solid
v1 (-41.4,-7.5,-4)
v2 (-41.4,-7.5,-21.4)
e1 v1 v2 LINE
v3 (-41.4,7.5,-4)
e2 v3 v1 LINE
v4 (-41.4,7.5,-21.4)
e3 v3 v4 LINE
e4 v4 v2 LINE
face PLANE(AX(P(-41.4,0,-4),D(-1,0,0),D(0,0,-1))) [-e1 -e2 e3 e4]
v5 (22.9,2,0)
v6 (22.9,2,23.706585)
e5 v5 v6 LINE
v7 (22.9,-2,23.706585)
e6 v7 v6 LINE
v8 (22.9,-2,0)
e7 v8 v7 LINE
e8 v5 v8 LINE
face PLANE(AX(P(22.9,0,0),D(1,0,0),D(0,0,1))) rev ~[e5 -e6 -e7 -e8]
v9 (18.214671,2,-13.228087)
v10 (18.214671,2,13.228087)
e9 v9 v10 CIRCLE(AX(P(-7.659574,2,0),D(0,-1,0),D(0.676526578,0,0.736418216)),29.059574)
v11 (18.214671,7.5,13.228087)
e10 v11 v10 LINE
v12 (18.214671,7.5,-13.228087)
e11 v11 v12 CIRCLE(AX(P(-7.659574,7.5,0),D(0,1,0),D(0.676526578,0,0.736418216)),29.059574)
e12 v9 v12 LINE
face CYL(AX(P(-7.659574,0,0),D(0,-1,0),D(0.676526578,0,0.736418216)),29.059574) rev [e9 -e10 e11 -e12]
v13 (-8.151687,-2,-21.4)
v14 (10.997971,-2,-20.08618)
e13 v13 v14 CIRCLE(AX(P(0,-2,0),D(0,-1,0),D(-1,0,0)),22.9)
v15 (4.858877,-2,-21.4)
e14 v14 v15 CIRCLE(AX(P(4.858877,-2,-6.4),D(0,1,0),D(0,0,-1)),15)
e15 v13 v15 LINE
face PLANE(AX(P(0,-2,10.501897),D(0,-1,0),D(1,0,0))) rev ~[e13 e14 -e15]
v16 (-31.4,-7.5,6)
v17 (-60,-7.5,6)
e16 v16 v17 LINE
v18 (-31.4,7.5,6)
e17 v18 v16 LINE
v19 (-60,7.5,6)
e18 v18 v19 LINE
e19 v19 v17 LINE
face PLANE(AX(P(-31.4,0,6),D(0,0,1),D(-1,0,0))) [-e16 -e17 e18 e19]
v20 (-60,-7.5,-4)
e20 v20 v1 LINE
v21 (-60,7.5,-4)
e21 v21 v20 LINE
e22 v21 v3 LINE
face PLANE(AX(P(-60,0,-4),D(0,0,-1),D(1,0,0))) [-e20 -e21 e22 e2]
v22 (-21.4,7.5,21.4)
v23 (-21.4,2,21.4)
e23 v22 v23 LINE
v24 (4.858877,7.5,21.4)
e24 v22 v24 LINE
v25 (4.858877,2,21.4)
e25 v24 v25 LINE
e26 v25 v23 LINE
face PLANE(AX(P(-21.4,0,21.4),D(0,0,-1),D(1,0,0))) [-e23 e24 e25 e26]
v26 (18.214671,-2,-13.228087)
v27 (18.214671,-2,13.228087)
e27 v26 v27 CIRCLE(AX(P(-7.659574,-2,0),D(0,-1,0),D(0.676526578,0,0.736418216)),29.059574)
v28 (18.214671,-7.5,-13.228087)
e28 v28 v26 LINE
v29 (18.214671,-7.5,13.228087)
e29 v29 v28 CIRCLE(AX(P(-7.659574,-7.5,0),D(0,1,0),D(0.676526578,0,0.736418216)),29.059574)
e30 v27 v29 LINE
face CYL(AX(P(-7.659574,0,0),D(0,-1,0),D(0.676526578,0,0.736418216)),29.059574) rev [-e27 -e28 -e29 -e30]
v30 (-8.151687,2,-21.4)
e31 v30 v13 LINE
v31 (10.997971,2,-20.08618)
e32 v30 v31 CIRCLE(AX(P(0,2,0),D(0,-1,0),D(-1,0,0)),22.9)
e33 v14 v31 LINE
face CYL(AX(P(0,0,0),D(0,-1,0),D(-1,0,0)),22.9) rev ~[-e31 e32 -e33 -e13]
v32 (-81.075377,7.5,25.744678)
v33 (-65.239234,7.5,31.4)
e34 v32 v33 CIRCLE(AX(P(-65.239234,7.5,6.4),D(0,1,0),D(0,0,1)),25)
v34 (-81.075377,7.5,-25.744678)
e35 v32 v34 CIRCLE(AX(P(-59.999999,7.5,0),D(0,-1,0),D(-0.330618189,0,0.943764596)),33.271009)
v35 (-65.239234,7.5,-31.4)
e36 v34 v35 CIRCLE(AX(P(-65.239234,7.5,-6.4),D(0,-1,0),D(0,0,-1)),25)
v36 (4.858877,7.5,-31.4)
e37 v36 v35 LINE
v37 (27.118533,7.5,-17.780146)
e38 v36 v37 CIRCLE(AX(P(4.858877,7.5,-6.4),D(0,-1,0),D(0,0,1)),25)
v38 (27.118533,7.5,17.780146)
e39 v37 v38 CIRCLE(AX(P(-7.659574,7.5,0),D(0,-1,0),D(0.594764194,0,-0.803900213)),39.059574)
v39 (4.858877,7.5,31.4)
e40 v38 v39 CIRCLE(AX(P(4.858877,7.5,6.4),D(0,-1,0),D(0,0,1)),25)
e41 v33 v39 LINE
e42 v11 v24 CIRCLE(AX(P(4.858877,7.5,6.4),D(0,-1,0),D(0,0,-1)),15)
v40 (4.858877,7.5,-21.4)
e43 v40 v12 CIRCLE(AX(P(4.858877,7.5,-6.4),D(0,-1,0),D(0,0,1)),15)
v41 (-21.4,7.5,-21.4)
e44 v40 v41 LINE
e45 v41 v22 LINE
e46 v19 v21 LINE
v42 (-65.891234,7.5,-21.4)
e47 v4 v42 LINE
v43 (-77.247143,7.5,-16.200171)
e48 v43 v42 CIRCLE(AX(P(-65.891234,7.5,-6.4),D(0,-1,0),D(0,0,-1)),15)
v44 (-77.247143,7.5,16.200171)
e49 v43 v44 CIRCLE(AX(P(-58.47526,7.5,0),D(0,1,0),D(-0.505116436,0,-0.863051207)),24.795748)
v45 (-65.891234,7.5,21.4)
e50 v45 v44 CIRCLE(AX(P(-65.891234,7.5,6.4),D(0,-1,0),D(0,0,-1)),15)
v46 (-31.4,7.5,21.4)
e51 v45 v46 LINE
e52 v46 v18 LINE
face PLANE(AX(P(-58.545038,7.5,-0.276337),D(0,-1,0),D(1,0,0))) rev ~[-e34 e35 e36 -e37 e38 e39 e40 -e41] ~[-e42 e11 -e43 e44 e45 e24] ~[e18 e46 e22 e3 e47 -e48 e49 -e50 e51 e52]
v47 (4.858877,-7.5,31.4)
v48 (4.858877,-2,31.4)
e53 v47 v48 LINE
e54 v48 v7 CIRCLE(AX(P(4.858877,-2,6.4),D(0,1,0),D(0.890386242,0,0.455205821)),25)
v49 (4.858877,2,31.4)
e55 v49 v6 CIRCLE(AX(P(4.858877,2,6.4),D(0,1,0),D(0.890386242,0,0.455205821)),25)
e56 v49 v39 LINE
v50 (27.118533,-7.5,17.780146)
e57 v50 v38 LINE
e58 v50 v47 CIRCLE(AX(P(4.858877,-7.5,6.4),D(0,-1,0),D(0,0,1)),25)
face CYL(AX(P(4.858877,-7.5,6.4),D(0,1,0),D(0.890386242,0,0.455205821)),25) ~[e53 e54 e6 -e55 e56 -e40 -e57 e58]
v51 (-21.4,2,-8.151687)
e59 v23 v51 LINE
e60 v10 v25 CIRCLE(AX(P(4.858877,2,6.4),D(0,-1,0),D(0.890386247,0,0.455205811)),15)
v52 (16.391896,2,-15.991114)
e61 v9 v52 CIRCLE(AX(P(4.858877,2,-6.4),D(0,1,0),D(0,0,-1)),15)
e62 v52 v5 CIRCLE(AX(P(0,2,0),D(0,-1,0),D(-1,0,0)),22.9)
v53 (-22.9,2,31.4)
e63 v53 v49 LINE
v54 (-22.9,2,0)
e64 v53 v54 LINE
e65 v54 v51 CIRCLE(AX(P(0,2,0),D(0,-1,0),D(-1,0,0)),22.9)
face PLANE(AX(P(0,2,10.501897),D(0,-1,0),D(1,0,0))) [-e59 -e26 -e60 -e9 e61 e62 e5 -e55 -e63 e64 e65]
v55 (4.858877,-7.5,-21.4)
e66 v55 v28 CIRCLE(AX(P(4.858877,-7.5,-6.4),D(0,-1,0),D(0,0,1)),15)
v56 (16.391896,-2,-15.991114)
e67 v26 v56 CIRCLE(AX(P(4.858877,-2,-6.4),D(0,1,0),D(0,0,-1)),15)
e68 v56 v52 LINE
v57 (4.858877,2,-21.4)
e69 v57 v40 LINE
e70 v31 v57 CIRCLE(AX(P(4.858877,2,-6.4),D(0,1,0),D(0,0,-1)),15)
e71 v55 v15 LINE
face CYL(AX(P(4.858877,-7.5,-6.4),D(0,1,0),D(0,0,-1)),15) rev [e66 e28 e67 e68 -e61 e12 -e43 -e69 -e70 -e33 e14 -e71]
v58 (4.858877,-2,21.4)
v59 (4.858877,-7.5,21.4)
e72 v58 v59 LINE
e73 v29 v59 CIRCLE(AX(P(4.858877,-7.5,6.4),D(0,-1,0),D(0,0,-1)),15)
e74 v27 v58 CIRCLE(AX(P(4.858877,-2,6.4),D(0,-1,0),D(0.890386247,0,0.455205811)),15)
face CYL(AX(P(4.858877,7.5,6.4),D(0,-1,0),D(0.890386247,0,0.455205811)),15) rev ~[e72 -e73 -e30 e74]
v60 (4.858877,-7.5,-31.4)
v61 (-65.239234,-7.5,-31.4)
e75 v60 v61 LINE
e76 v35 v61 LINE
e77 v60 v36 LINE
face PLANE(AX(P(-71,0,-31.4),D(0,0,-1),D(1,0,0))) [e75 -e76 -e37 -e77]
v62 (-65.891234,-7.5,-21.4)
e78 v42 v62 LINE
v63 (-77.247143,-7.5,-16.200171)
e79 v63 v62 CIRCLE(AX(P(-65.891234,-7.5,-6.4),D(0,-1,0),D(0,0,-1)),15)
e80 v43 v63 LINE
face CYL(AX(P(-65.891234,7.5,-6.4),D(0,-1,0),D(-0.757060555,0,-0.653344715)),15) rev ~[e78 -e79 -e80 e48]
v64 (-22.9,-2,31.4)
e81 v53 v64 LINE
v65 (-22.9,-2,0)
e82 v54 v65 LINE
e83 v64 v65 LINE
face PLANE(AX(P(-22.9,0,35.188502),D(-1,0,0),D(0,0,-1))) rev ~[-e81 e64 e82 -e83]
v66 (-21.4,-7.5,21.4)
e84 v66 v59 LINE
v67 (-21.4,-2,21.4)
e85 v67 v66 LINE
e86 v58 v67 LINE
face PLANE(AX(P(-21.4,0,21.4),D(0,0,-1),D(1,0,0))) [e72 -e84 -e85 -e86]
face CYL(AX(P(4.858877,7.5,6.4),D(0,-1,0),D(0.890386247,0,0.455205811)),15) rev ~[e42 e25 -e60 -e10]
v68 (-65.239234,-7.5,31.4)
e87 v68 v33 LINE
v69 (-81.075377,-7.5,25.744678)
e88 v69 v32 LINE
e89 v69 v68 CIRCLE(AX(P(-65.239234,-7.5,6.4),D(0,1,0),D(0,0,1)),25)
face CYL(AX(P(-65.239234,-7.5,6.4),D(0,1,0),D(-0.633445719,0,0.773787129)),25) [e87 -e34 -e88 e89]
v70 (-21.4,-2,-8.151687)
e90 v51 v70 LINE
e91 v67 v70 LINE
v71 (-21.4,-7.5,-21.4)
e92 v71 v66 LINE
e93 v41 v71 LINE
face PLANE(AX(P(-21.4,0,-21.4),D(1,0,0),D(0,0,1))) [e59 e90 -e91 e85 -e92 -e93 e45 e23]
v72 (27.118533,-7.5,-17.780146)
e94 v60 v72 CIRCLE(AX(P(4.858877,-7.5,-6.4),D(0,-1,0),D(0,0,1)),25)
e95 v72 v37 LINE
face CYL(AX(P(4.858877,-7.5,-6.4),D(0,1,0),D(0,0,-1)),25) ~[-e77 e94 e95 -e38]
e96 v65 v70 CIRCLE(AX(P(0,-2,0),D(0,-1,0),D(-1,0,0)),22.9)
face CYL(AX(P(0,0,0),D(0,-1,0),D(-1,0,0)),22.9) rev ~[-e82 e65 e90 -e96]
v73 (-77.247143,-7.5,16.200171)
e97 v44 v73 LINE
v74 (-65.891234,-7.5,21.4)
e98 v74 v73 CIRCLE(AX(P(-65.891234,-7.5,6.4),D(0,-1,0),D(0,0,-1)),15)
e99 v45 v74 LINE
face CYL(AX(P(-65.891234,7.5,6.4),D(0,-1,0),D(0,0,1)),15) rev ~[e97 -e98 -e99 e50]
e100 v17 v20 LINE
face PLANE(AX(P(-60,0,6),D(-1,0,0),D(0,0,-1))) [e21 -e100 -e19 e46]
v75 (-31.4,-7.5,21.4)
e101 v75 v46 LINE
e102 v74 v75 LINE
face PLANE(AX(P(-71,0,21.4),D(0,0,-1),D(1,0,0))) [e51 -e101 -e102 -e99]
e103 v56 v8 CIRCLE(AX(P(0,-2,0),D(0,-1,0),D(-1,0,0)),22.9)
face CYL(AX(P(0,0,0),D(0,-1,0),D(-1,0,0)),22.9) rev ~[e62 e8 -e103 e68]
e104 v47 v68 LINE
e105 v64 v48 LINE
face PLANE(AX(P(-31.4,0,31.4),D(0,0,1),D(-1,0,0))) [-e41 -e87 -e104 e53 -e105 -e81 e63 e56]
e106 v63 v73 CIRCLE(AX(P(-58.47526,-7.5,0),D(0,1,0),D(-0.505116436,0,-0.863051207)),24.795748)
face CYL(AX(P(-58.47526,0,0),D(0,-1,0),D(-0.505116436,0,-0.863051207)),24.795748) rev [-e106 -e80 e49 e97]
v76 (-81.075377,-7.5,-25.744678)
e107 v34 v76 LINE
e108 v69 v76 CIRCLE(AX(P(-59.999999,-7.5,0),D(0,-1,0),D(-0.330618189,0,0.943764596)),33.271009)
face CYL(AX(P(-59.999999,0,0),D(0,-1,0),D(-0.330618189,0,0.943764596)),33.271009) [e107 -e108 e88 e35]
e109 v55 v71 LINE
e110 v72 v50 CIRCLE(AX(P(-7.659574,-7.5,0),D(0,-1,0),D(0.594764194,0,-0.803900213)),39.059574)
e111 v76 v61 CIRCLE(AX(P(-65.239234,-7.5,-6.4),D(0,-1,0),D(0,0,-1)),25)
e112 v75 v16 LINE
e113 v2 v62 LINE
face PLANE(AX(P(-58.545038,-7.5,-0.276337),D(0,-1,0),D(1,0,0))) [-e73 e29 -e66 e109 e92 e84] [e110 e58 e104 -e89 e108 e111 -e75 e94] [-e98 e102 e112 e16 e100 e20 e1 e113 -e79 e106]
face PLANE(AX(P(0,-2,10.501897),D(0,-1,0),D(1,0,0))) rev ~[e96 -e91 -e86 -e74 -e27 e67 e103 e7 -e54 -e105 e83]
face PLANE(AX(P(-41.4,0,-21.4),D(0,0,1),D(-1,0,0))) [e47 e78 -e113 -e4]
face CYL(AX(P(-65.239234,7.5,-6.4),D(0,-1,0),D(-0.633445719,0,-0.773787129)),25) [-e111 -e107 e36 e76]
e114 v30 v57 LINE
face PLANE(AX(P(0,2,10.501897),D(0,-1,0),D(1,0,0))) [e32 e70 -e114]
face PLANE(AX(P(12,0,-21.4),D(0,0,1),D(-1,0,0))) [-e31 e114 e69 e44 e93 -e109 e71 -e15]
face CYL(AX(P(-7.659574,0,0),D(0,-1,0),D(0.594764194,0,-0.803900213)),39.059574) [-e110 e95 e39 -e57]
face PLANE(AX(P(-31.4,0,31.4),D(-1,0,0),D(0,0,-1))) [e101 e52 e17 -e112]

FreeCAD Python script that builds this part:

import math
import FreeCAD as App
import Part
import Sketcher
Q = App.Units.Quantity


def edges_at(feature, points):
    """Names of the edges that pass closest to the given points."""
    edges = feature.Shape.Edges
    near = lambda p: min(range(len(edges)), key=lambda i: edges[i].distToShape(Part.Vertex(*p))[0])
    return sorted({f"Edge{near(p) + 1}" for p in points})

doc = App.newDocument("Part")
body = doc.addObject("PartDesign::Body", "Body")

# Sketch on XZ plane
sketch1 = body.newObject("Sketcher::SketchObject", "Sketch")
sketch1.AttachmentSupport = (doc.getObject("XZ_Plane"), [""])
sketch1.MapMode = "FlatFace"
sketch1.addGeometry([
    Part.LineSegment(App.Vector(16, 31, 0), App.Vector(-31, 31, 0)),  # 0
    Part.LineSegment(App.Vector(-31, 31, 0), App.Vector(-31, -31, 0)),  # 1
    Part.LineSegment(App.Vector(-31, -31, 0), App.Vector(16, -31, 0)),  # 2
    Part.ArcOfCircle(Part.Circle(App.Vector(-8, 0, 0), App.Vector(0, 0, 1), 39), math.radians(-54), math.radians(54)),  # 3
    Part.LineSegment(App.Vector(12, -21, 0), App.Vector(-21, -21, 0)),  # 4
    Part.LineSegment(App.Vector(-21, -21, 0), App.Vector(-21, 21, 0)),  # 5
    Part.LineSegment(App.Vector(-21, 21, 0), App.Vector(12, 21, 0)),  # 6
    Part.ArcOfCircle(Part.Circle(App.Vector(-8, 0, 0), App.Vector(0, 0, 1), 29), math.radians(-47), math.radians(47)),  # 7
], False)
sketch1.addConstraint([
    Sketcher.Constraint("Coincident", 0, 2, 1, 1),
    Sketcher.Constraint("Coincident", 1, 2, 2, 1),
    Sketcher.Constraint("Coincident", 2, 2, 3, 1),
    Sketcher.Constraint("Coincident", 3, 2, 0, 1),
    Sketcher.Constraint("Coincident", 4, 2, 5, 1),
    Sketcher.Constraint("Coincident", 5, 2, 6, 1),
    Sketcher.Constraint("Coincident", 6, 2, 7, 2),
    Sketcher.Constraint("Coincident", 7, 1, 4, 1),
    Sketcher.Constraint("Horizontal", 0),
    Sketcher.Constraint("Vertical", 1),
    Sketcher.Constraint("Horizontal", 2),
    Sketcher.Constraint("Horizontal", 4),
    Sketcher.Constraint("Vertical", 5),
    Sketcher.Constraint("Horizontal", 6),
    Sketcher.Constraint("Coincident", 7, 3, 3, 3),
    Sketcher.Constraint("Symmetric", 2, 2, 3, 2, -1),
    Sketcher.Constraint("Vertical", 6, 2, 7, 1),
    Sketcher.Constraint("DistanceX", 4, 2, 4, 1, Q("33.4 mm")),
    Sketcher.Constraint("DistanceY", 1, 2, 1, 1, Q("62.8 mm")),
    Sketcher.Constraint("DistanceY", 5, 1, 5, 2, Q("42.8 mm")),
    Sketcher.Constraint("DistanceX", -1, 1, 6, 2, Q("12 mm")),
    Sketcher.Constraint("DistanceX", 1, 2, 4, 2, Q("10 mm")),
    Sketcher.Constraint("Radius", 3, Q("39.059574 mm")),
    Sketcher.Constraint("Radius", 7, Q("29.059574 mm")),
])
pad1 = body.newObject("PartDesign::Pad", "Pad")
pad1.Profile = sketch1
pad1.Length = 15
pad1.Midplane = True

# Sketch on XZ plane
sketch2 = body.newObject("Sketcher::SketchObject", "Sketch001")
sketch2.AttachmentSupport = (doc.getObject("XZ_Plane"), [""])
sketch2.MapMode = "FlatFace"
sketch2.addGeometry([
    Part.ArcOfCircle(Part.Circle(App.Vector(-60, 0, 0), App.Vector(0, 0, 1), 33), math.radians(109), math.radians(251)),  # 0
    Part.LineSegment(App.Vector(-71, -31, 0), App.Vector(-31, -31, 0)),  # 1
    Part.LineSegment(App.Vector(-31, -31, 0), App.Vector(-31, 6, 0)),  # 2
    Part.LineSegment(App.Vector(-31, 6, 0), App.Vector(-60, 6, 0)),  # 3
    Part.LineSegment(App.Vector(-60, 6, 0), App.Vector(-60, -4, 0)),  # 4
    Part.LineSegment(App.Vector(-60, -4, 0), App.Vector(-41, -4, 0)),  # 5
    Part.LineSegment(App.Vector(-41, -4, 0), App.Vector(-41, -21, 0)),  # 6
    Part.LineSegment(App.Vector(-41, -21, 0), App.Vector(-71, -21, 0)),  # 7
    Part.ArcOfCircle(Part.Circle(App.Vector(-58, 0, 0), App.Vector(0, 0, 1), 25), math.radians(120), math.radians(240)),  # 8
    Part.LineSegment(App.Vector(-71, 21, 0), App.Vector(-31, 21, 0)),  # 9
    Part.LineSegment(App.Vector(-31, 21, 0), App.Vector(-31, 31, 0)),  # 10
    Part.LineSegment(App.Vector(-31, 31, 0), App.Vector(-71, 31, 0)),  # 11
], False)
sketch2.addConstraint([
    Sketcher.Constraint("Coincident", 0, 2, 1, 1),
    Sketcher.Constraint("Coincident", 1, 2, 2, 1),
    Sketcher.Constraint("Coincident", 2, 2, 3, 1),
    Sketcher.Constraint("Coincident", 3, 2, 4, 1),
    Sketcher.Constraint("Coincident", 4, 2, 5, 1),
    Sketcher.Constraint("Coincident", 5, 2, 6, 1),
    Sketcher.Constraint("Coincident", 6, 2, 7, 1),
    Sketcher.Constraint("Coincident", 7, 2, 8, 2),
    Sketcher.Constraint("Coincident", 8, 1, 9, 1),
    Sketcher.Constraint("Coincident", 9, 2, 10, 1),
    Sketcher.Constraint("Coincident", 10, 2, 11, 1),
    Sketcher.Constraint("Coincident", 11, 2, 0, 1),
    Sketcher.Constraint("Horizontal", 1),
    Sketcher.Constraint("Vertical", 2),
    Sketcher.Constraint("Horizontal", 3),
    Sketcher.Constraint("Vertical", 4),
    Sketcher.Constraint("Horizontal", 5),
    Sketcher.Constraint("Vertical", 6),
    Sketcher.Constraint("Horizontal", 7),
    Sketcher.Constraint("Horizontal", 9),
    Sketcher.Constraint("Vertical", 10),
    Sketcher.Constraint("Horizontal", 11),
    Sketcher.Constraint("Symmetric", 7, 2, 8, 1, -1),
    Sketcher.Constraint("Symmetric", 1, 2, 10, 2, -1),
    Sketcher.Constraint("PointOnObject", 0, 3, -1),
    Sketcher.Constraint("Vertical", 0, 3, 3, 2),
    Sketcher.Constraint("Vertical", 0, 2, 7, 2),
    Sketcher.Constraint("Equal", 4, 10),
    Sketcher.Constraint("DistanceY", 4, 2, 4, 1, Q("10 mm")),
    Sketcher.Constraint("DistanceX", 1, 1, 1, 2, Q("39.6 mm")),
    Sketcher.Constraint("DistanceX", 3, 2, 3, 1, Q("28.6 mm")),
    Sketcher.Constraint("DistanceX", 5, 1, 5, 2, Q("18.6 mm")),
    Sketcher.Constraint("DistanceY", 2, 1, 2, 2, Q("37.4 mm")),
    Sketcher.Constraint("DistanceX", 0, 3, -1, 1, Q("59.999999 mm")),
    Sketcher.Constraint("DistanceY", -1, 1, 2, 2, Q("6 mm")),
    Sketcher.Constraint("Radius", 8, Q("24.795748 mm")),
])
pad2 = body.newObject("PartDesign::Pad", "Pad001")
pad2.Profile = sketch2
pad2.Length = 15
pad2.Midplane = True
doc.recompute()

fillet = body.newObject("PartDesign::Fillet", "Fillet")
fillet.Base = (pad2, edges_at(pad2, [
    (-71, 0, 21.4),
    (-71, 0, -21.4),
    (12, 0, -21.4),
    (12, 0, 21.4),
]))
fillet.Radius = 15
doc.recompute()

fillet2 = body.newObject("PartDesign::Fillet", "Fillet001")
fillet2.Base = (fillet, edges_at(fillet, [
    (-71, 0, 31.4),
    (-71, 0, -31.4),
    (15.572, 0, -31.4),
    (15.572, 0, 31.4),
]))
fillet2.Radius = 25

# Sketch on XZ plane
sketch3 = body.newObject("Sketcher::SketchObject", "Sketch002")
sketch3.AttachmentSupport = (doc.getObject("XZ_Plane"), [""])
sketch3.MapMode = "FlatFace"
sketch3.addGeometry([
    Part.LineSegment(App.Vector(-23, 35, 0), App.Vector(-23, 0, 0)),
    Part.ArcOfCircle(Part.Circle(App.Vector(0, 0, 0), App.Vector(0, 0, 1), 23), math.radians(180), math.radians(360)),
    Part.LineSegment(App.Vector(23, 0, 0), App.Vector(23, 35, 0)),
    Part.LineSegment(App.Vector(23, 35, 0), App.Vector(-23, 35, 0)),
], False)
sketch3.addConstraint([
    Sketcher.Constraint("Tangent", 0, 2, 1, 1),
    Sketcher.Constraint("Tangent", 1, 2, 2, 1),
    Sketcher.Constraint("Coincident", 2, 2, 3, 1),
    Sketcher.Constraint("Coincident", 3, 2, 0, 1),
    Sketcher.Constraint("Vertical", 0),
    Sketcher.Constraint("Vertical", 2),
    Sketcher.Constraint("Horizontal", 3),
    Sketcher.Constraint("Coincident", 1, 3, -1, 1),
    Sketcher.Constraint("Radius", 1, Q("22.9 mm")),
    Sketcher.Constraint("DistanceY", 0, 2, 0, 1, Q("35.188502 mm")),
])
pocket1 = body.newObject("PartDesign::Pocket", "Pocket")
pocket1.Profile = sketch3
pocket1.Length = 4
pocket1.Midplane = True

doc.recompute()
